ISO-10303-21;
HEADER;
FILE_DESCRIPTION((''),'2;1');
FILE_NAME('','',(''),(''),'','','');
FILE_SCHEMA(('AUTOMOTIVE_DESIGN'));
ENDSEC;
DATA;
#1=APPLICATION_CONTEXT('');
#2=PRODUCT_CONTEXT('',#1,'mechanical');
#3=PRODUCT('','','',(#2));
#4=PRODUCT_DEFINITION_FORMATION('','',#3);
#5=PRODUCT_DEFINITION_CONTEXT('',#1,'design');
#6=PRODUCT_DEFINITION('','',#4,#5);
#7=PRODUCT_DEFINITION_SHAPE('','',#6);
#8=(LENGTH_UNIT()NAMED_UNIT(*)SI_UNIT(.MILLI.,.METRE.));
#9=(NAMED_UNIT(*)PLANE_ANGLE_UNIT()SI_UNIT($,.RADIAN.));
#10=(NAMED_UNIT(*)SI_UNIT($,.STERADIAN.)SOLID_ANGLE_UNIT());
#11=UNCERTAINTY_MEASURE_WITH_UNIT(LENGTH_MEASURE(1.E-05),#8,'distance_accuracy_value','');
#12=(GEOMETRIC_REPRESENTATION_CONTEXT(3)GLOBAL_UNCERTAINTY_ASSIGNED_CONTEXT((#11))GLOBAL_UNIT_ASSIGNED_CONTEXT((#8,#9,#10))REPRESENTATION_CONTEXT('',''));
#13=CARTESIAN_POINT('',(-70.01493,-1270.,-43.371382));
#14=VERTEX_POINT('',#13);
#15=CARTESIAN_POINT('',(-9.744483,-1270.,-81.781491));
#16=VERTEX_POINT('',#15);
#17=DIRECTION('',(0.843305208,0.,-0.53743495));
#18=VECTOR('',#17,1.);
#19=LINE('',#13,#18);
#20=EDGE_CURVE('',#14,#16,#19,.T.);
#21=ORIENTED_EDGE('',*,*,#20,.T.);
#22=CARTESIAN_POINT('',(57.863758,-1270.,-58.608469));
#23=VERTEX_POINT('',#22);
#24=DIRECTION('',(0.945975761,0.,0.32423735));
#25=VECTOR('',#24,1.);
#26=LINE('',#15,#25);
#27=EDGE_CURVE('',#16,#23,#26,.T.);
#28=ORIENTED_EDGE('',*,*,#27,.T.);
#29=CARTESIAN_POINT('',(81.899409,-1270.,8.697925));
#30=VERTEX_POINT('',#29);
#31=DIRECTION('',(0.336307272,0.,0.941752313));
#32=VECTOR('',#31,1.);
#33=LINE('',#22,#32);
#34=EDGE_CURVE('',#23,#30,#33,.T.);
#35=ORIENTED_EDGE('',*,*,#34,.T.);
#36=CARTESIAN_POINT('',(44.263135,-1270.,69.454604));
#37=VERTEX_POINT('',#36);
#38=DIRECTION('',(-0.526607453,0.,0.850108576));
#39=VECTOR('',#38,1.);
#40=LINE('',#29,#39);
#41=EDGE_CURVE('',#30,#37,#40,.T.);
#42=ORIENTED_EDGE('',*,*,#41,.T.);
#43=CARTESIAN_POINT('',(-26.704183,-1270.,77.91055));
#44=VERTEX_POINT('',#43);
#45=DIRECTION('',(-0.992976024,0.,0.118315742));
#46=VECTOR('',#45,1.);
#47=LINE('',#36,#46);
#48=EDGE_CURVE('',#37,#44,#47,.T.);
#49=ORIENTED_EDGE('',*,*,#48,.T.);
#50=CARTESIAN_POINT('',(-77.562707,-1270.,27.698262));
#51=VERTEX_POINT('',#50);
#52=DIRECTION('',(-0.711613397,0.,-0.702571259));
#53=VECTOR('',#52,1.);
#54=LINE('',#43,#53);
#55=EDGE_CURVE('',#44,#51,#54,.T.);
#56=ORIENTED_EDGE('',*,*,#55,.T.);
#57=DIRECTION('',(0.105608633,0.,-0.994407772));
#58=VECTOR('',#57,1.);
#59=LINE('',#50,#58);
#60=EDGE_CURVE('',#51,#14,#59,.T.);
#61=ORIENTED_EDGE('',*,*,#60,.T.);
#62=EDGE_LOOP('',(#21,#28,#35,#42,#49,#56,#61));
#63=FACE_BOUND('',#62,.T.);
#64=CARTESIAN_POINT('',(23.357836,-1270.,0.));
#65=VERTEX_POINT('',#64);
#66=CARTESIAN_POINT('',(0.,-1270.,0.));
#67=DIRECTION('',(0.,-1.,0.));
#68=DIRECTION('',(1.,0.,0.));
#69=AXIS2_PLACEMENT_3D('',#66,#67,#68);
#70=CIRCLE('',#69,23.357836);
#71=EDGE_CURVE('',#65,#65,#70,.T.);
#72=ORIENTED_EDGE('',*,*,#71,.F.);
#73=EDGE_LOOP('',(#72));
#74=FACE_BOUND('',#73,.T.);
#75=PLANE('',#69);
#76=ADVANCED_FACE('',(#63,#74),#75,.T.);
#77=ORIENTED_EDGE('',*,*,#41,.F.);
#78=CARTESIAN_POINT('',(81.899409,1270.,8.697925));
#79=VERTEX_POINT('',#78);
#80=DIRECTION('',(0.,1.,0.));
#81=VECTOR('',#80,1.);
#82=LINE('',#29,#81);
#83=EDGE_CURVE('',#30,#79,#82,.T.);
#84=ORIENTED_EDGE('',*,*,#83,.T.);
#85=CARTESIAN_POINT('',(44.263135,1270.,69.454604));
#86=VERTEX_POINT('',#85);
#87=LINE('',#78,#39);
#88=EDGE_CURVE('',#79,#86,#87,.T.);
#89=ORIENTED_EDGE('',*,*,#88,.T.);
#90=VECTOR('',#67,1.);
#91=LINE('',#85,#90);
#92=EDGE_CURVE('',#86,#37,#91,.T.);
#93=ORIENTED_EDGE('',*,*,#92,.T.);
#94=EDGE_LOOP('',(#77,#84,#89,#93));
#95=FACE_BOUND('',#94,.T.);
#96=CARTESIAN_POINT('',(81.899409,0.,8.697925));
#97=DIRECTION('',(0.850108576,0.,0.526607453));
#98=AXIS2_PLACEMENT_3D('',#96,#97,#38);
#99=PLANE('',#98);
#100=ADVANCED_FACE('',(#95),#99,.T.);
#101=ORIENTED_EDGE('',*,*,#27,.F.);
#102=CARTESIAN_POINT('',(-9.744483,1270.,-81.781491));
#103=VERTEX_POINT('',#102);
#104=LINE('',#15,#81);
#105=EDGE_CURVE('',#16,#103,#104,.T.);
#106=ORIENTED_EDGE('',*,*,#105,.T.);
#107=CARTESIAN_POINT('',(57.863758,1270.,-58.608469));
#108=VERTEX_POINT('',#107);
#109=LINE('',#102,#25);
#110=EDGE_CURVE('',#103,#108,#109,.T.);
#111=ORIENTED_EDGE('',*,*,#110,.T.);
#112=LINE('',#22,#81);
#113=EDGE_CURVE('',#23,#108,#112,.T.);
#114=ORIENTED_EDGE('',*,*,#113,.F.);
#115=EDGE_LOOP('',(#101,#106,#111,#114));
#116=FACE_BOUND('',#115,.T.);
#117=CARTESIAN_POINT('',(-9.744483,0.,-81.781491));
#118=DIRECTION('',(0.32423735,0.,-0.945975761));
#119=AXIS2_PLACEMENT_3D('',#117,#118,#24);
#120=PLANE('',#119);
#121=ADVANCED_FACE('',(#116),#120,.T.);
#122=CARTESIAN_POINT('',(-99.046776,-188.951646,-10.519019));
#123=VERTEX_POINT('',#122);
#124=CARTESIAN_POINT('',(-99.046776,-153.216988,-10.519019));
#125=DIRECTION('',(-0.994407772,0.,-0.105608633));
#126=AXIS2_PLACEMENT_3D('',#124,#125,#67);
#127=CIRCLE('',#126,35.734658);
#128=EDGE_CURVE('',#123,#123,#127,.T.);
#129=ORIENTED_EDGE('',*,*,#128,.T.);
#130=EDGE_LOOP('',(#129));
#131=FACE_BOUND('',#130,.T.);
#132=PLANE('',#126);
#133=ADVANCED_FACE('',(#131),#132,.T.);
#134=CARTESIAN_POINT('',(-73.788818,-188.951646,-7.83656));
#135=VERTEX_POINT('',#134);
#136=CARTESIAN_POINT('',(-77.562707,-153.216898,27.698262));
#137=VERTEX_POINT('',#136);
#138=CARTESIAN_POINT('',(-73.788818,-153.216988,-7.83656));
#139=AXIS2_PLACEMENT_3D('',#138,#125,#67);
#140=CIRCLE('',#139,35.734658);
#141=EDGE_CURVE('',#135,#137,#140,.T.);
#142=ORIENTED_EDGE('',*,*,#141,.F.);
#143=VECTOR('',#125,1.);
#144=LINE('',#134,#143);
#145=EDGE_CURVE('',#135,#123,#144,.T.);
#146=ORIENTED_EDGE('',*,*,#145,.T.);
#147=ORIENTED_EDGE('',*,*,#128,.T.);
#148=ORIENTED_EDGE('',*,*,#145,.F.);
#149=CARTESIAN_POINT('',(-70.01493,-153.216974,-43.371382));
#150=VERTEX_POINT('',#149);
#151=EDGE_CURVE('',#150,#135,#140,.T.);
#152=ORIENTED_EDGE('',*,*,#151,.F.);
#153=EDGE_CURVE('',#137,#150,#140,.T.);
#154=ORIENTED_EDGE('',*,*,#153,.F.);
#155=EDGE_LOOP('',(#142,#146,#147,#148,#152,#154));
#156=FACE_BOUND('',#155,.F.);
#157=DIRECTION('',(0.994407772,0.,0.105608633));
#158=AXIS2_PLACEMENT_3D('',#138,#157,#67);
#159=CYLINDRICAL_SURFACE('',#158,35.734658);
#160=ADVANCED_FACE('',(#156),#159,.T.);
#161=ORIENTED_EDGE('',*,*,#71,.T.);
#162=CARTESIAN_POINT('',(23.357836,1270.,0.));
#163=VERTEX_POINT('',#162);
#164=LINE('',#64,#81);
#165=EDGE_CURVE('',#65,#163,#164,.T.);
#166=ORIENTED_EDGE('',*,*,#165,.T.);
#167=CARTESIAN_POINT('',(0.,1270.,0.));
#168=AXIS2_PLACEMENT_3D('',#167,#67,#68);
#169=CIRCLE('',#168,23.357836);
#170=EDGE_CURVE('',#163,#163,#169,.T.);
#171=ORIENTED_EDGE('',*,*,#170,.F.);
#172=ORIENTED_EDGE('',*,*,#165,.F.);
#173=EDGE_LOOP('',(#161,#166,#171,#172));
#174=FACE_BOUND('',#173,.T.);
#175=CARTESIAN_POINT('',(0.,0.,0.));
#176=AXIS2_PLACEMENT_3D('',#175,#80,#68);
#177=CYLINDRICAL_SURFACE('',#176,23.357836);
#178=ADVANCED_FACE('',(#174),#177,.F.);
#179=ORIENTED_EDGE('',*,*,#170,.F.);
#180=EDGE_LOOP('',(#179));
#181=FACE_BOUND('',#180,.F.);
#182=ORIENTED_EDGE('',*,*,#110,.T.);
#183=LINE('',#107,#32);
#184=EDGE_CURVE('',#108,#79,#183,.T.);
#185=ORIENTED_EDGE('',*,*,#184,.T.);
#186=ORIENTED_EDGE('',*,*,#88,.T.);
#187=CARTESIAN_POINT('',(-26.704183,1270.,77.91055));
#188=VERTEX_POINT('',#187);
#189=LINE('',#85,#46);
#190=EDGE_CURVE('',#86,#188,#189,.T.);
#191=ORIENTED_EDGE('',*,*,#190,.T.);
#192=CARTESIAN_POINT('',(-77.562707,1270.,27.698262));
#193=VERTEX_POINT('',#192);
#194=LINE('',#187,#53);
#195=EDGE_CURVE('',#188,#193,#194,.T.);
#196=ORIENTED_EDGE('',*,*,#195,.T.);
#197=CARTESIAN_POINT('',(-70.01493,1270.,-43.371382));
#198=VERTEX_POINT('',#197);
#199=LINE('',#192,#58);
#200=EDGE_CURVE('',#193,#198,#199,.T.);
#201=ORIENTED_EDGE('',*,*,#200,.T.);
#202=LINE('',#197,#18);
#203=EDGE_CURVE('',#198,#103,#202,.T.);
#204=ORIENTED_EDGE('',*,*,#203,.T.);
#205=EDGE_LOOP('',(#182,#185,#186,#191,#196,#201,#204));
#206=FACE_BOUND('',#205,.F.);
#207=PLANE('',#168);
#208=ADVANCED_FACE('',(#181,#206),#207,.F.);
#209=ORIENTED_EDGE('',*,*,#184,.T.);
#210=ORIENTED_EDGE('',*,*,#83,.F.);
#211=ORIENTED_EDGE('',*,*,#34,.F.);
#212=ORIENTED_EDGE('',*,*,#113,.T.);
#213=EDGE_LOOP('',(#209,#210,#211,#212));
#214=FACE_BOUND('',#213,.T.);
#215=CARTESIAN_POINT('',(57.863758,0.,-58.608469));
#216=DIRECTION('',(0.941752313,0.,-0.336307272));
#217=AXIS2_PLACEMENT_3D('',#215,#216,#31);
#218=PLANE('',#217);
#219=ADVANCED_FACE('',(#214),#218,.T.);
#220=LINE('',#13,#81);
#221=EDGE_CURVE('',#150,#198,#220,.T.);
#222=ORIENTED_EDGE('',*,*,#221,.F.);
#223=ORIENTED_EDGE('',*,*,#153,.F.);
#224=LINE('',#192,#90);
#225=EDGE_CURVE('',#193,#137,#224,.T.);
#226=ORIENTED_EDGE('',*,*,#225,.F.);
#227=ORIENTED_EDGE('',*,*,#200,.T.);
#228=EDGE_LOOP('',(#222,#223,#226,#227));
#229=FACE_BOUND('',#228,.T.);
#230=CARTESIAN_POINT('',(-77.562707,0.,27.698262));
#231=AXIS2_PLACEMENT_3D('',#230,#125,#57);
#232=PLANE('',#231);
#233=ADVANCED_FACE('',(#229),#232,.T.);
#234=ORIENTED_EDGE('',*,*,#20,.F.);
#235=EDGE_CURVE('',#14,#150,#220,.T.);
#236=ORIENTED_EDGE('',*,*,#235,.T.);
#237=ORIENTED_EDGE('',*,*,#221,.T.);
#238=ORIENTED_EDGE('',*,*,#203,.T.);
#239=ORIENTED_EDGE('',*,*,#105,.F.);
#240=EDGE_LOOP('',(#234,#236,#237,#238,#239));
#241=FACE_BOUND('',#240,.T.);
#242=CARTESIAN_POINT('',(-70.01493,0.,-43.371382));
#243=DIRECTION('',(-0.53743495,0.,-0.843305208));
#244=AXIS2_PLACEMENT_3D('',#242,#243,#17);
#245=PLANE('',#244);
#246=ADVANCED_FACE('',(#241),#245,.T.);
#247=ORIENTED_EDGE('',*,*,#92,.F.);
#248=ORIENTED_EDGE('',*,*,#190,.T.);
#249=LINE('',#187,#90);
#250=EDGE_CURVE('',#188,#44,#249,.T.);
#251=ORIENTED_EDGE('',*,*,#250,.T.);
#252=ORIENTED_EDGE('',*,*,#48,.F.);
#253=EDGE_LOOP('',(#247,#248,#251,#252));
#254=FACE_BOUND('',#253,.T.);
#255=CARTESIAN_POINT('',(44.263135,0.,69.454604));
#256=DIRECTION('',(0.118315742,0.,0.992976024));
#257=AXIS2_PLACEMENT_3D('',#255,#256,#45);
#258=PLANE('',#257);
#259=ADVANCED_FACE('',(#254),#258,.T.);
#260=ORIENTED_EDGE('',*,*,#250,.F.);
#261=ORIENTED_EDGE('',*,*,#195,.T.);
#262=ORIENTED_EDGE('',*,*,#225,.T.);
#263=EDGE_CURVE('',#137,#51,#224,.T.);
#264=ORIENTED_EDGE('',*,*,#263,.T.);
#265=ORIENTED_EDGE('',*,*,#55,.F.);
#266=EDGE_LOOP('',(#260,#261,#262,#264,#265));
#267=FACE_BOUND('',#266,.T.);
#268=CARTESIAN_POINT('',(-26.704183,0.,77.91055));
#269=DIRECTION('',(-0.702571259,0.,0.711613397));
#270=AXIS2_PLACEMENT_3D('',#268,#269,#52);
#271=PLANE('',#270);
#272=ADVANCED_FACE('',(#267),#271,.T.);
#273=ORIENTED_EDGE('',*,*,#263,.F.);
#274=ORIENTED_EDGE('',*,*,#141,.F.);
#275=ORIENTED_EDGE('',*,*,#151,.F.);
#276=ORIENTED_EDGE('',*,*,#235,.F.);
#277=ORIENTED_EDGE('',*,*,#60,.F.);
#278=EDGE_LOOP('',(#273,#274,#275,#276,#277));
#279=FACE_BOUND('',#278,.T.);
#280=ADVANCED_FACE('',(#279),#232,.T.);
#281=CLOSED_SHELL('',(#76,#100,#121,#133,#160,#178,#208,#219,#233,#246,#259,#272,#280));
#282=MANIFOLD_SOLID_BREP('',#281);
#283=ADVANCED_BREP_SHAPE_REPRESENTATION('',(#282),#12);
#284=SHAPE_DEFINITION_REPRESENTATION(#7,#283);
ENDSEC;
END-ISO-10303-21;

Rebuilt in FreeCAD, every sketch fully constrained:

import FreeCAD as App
import Part
import Sketcher
from FreeCAD import Vector
Q = App.Units.Quantity


def add_polygon(sketch, points):
    """Adds a closed chain of lines whose ends are joined by coincident constraints."""
    first, n = sketch.GeometryCount, len(points)
    for a, b in zip(points, points[1:] + points[:1]):
        sketch.addGeometry(Part.LineSegment(App.Vector(*a, 0), App.Vector(*b, 0)), False)
    for i in range(n):
        sketch.addConstraint(Sketcher.Constraint("Coincident", first + i, 2, first + (i + 1) % n, 1))

doc = App.newDocument("Part")
body = doc.addObject("PartDesign::Body", "Body")

# Sketch on XZ plane
sketch1 = body.newObject("Sketcher::SketchObject", "Sketch")
sketch1.AttachmentSupport = (doc.getObject("XZ_Plane"), [""])
sketch1.MapMode = "FlatFace"
add_polygon(sketch1, [(82, 9), (44, 69), (-27, 78), (-78, 28), (-70, -43), (-10, -82), (58, -59)])  # lines 0-6
sketch1.addGeometry(Part.Circle(Vector(0, 0, 0), Vector(0, 0, 1), 23), False)  # 7
sketch1.addConstraint([
    Sketcher.Constraint("Coincident", 7, 3, -1, 1),
    Sketcher.Constraint("Equal", 0, 1),
    Sketcher.Constraint("Equal", 1, 2),
    Sketcher.Constraint("Equal", 2, 3),
    Sketcher.Constraint("Equal", 3, 4),
    Sketcher.Constraint("Equal", 4, 5),
    Sketcher.Constraint("Equal", 5, 6),
    Sketcher.Constraint("Diameter", 7, 46.715671),
    Sketcher.Constraint("DistanceX", 1, 2, 4, 2, 16.959701),
    Sketcher.Constraint("DistanceY", -1, 1, 1, 2, 77.91055),
    Sketcher.Constraint("DistanceY", -1, 1, 2, 2, 27.698262),
    Sketcher.Constraint("DistanceX", 3, 2, -1, 1, 70.01493),
    Sketcher.Constraint("DistanceY", 4, 2, -1, 1, 81.781491),
    Sketcher.Constraint("DistanceX", -1, 1, 5, 2, 57.863758),
    Sketcher.Constraint("DistanceY", 5, 2, -1, 1, 58.608469),
    Sketcher.Constraint("DistanceX", -1, 1, 6, 2, 81.899409),
])
pad1 = body.newObject("PartDesign::Pad", "Pad")
pad1.Profile = sketch1
pad1.Length = Q("100 in")
pad1.Midplane = True

# Sketch on an angled plane
sketch2 = body.newObject("Sketcher::SketchObject", "Sketch001")
sketch2.Placement = App.Placement(Vector(-73.788818, 0, -7.83656), App.Rotation(Vector(0, -1, 0), Vector(-0.105608633, 0, 0.994407772), Vector(-0.994407772, 0, -0.105608633), "ZXY"))
sketch2.addGeometry(Part.Circle(Vector(153, 0, 0), Vector(0, 0, 1), 36), False)
sketch2.addConstraint([
    Sketcher.Constraint("PointOnObject", 0, 3, -1),
    Sketcher.Constraint("Diameter", 0, 71.469317),
    Sketcher.Constraint("DistanceX", -1, 1, 0, 3, 153.216988),
])
pad2 = body.newObject("PartDesign::Pad", "Pad001")
pad2.Profile = sketch2
pad2.Length = Q("1 in")

doc.recompute()
